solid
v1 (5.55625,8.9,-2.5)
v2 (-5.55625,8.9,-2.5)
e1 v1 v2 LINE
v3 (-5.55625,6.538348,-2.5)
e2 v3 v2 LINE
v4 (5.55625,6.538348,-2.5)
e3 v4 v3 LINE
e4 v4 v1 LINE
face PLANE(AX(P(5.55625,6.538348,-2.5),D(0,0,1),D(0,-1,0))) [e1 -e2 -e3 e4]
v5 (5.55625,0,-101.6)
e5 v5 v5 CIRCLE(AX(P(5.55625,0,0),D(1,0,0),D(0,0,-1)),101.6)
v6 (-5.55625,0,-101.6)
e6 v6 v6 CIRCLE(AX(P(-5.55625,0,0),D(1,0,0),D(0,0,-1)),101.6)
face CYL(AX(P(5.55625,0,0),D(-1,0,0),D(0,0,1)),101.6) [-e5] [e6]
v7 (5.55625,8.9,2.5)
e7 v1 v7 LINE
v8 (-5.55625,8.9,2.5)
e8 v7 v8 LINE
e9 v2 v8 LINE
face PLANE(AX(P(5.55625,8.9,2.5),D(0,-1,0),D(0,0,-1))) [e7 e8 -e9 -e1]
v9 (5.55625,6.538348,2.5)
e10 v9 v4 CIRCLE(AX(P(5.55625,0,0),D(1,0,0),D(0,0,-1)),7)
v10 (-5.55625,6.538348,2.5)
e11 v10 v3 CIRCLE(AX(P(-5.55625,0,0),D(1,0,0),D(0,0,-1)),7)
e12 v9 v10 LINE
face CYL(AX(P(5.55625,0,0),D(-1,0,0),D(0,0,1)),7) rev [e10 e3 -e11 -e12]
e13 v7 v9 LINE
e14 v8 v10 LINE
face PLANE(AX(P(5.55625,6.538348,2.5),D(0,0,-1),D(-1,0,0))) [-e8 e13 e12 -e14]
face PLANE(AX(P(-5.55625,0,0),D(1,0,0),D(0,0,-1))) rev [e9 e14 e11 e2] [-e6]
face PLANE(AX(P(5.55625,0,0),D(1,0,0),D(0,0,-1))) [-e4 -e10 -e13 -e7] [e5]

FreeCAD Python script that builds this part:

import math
import FreeCAD as App
import Part
import Sketcher
from FreeCAD import Vector
Q = App.Units.Quantity

doc = App.newDocument("Part")
body = doc.addObject("PartDesign::Body", "Body")

# Sketch on YZ plane
sketch1 = doc.addObject("Sketcher::SketchObject", "Sketch")
body.addObject(sketch1)
sketch1.AttachmentSupport = (doc.YZ_Plane, [""])
sketch1.MapMode = "FlatFace"
sketch1.addGeometry([
    Part.Circle(Vector(0, 0, 0), Vector(0, 0, 1), 101.6),  # 0
    Part.ArcOfCircle(Part.Circle(Vector(0, 0, 0), Vector(0, 0, 1), 7), math.radians(20.924832), math.radians(339.075168)),  # 1
    Part.LineSegment(Vector(6.538348, 2.5, 0), Vector(8.9, 2.5, 0)),  # 2
    Part.LineSegment(Vector(8.9, 2.5, 0), Vector(8.9, -2.5, 0)),  # 3
    Part.LineSegment(Vector(8.9, -2.5, 0), Vector(6.538348, -2.5, 0)),  # 4
], False)
sketch1.addConstraint([
    Sketcher.Constraint("Coincident", 1, 1, 2, 1),
    Sketcher.Constraint("Coincident", 2, 2, 3, 1),
    Sketcher.Constraint("Coincident", 3, 2, 4, 1),
    Sketcher.Constraint("Coincident", 4, 2, 1, 2),
    Sketcher.Constraint("Horizontal", 2),
    Sketcher.Constraint("Vertical", 3),
    Sketcher.Constraint("Horizontal", 4),
    Sketcher.Constraint("Coincident", 0, 3, -1, 1),
    Sketcher.Constraint("Coincident", 1, 3, -1, 1),
    Sketcher.Constraint("Vertical", 1, 1, 4, 2),
    Sketcher.Constraint("Radius", 1, Q("7 mm")),
    Sketcher.Constraint("Diameter", 0, Q("203.2 mm")),
    Sketcher.Constraint("DistanceY", 3, 2, 3, 1, Q("5 mm")),
    Sketcher.Constraint("DistanceX", -1, 1, 2, 2, Q("8.9 mm")),
])
pad1 = doc.addObject("PartDesign::Pad", "Pad")
body.addObject(pad1)
pad1.Profile = sketch1
pad1.Length = 11.1125
pad1.Midplane = True

doc.recompute()
